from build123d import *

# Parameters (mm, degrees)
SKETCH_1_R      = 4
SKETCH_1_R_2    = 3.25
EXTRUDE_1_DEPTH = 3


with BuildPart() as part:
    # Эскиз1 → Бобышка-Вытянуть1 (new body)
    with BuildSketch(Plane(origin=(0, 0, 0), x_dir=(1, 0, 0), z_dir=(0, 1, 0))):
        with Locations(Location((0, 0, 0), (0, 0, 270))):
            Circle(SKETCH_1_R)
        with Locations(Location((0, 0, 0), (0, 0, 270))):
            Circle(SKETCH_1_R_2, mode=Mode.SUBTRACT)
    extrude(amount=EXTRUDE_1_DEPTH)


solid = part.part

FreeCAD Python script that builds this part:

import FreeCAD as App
import Part
import Sketcher
Q = App.Units.Quantity

doc = App.newDocument("Part")
body = doc.addObject("PartDesign::Body", "Body")

# Sketch on XZ plane
sketch1 = body.newObject("Sketcher::SketchObject", "Sketch")
sketch1.AttachmentSupport = (doc.getObject("XZ_Plane"), [""])
sketch1.MapMode = "FlatFace"
sketch1.addGeometry(Part.Circle(App.Vector(0, 0, 0), App.Vector(0, 0, 1), 4), False)
sketch1.addGeometry(Part.Circle(App.Vector(0, 0, 0), App.Vector(0, 0, 1), 3.25), False)
sketch1.addConstraint(Sketcher.Constraint("Coincident", 0, 3, -1, 1))
sketch1.addConstraint(Sketcher.Constraint("Coincident", 1, 3, -1, 1))
sketch1.addConstraint(Sketcher.Constraint("Diameter", 0, Q("8 mm")))
sketch1.addConstraint(Sketcher.Constraint("Diameter", 1, Q("6.5 mm")))
pad1 = body.newObject("PartDesign::Pad", "Pad")
pad1.Profile = sketch1
pad1.Length = 3
pad1.Reversed = True

doc.recompute()
